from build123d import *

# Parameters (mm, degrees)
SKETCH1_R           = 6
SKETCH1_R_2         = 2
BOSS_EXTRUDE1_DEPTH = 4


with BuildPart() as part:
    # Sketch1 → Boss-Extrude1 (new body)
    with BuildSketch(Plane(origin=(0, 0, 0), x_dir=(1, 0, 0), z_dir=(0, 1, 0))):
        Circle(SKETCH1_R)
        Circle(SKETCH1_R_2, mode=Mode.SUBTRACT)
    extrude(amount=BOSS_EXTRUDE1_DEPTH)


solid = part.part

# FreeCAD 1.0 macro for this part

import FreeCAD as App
import Part
import Sketcher

V = App.Vector

doc = App.newDocument("Part")
body = doc.addObject("PartDesign::Body", "Body")

# Sketch on XZ plane
sketch1 = body.newObject("Sketcher::SketchObject", "Sketch")
sketch1.AttachmentSupport = (doc.getObject("XZ_Plane"), [""])
sketch1.MapMode = "FlatFace"
sketch1.addGeometry([
    Part.Circle(V(0, 0, 0), V(0, 0, 1), 6),
    Part.Circle(V(0, 0, 0), V(0, 0, 1), 2),
], False)
sketch1.addConstraint([
    Sketcher.Constraint("Coincident", 0, 3, -1, 1),
    Sketcher.Constraint("Coincident", 1, 3, -1, 1),
    Sketcher.Constraint("Diameter", 0, 12.0),
    Sketcher.Constraint("Diameter", 1, 4.0),
])
pad1 = body.newObject("PartDesign::Pad", "Pad")
pad1.Profile = sketch1
pad1.Length = 4
pad1.Reversed = True

doc.recompute()
